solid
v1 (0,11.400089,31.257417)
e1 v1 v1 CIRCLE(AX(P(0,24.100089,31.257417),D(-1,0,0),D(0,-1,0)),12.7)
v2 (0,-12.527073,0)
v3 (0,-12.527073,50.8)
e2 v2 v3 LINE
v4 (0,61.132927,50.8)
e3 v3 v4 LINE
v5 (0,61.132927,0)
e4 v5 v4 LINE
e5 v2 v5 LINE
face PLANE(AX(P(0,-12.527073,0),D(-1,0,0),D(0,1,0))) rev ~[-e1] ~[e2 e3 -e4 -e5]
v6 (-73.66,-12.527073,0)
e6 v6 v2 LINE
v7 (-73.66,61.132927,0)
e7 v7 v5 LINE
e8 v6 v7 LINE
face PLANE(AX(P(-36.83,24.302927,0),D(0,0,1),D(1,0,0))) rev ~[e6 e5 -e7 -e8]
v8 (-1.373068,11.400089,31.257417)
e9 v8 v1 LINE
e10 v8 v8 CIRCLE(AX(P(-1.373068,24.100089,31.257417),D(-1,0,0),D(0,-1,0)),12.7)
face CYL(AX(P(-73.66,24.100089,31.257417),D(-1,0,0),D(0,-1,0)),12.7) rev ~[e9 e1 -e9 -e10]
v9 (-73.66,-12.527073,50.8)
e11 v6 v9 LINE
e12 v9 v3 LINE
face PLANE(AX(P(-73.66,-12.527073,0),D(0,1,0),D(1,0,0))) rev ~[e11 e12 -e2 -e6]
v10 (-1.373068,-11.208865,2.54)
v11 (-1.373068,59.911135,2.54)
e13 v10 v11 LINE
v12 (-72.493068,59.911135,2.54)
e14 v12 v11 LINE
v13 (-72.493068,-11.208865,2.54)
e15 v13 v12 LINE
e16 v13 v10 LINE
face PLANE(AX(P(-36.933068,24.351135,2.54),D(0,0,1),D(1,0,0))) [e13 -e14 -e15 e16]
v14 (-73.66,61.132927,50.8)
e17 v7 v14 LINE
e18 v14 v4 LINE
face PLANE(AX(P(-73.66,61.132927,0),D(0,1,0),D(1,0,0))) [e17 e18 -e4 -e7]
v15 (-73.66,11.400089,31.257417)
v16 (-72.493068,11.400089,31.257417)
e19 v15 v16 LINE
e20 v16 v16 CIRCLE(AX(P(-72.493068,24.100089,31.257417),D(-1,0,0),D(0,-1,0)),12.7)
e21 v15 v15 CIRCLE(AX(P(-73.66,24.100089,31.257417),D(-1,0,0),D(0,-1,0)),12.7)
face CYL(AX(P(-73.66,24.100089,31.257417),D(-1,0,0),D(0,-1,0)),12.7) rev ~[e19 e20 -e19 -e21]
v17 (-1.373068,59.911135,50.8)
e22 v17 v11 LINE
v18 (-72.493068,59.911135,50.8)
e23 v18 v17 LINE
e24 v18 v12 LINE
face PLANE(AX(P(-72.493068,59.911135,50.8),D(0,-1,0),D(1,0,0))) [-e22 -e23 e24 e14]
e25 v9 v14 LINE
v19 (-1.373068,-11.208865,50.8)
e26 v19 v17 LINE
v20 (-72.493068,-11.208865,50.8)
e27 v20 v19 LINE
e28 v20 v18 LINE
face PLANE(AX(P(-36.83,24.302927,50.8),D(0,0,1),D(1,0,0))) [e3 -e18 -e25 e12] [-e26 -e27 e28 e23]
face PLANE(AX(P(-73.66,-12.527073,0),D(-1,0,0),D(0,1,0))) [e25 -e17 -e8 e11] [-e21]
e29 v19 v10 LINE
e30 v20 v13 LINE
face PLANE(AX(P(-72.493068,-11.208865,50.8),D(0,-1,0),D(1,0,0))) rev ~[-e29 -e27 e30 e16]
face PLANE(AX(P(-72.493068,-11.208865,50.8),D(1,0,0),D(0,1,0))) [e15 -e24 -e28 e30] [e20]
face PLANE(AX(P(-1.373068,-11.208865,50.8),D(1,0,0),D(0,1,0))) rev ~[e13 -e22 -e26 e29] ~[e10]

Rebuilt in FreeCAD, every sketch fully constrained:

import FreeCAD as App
import Part
import Sketcher

V = App.Vector
Q = App.Units.Quantity

doc = App.newDocument("Part")
body = doc.addObject("PartDesign::Body", "Body")

# Sketch on XY plane
sketch1 = body.newObject("Sketcher::SketchObject", "Sketch")
sketch1.AttachmentSupport = (doc.getObject("XY_Plane"), [""])
sketch1.MapMode = "FlatFace"
sketch1.addGeometry([
    Part.LineSegment(V(-74, 61, 0), V(-74, -13, 0)),
    Part.LineSegment(V(-74, -13, 0), V(0, -13, 0)),
    Part.LineSegment(V(0, -13, 0), V(0, 61, 0)),
    Part.LineSegment(V(0, 61, 0), V(-74, 61, 0)),
], False)
sketch1.addConstraint([
    Sketcher.Constraint("Coincident", 0, 2, 1, 1),
    Sketcher.Constraint("Coincident", 1, 2, 2, 1),
    Sketcher.Constraint("Coincident", 2, 2, 3, 1),
    Sketcher.Constraint("Coincident", 3, 2, 0, 1),
    Sketcher.Constraint("Vertical", 0),
    Sketcher.Constraint("Horizontal", 1),
    Sketcher.Constraint("Vertical", 2),
    Sketcher.Constraint("Horizontal", 3),
    Sketcher.Constraint("PointOnObject", 1, 2, -2),
    Sketcher.Constraint("Equal", 3, 0),
    Sketcher.Constraint("DistanceX", 1, 1, 1, 2, Q("2.9 in")),
    Sketcher.Constraint("DistanceY", 0, 2, -1, 1, 12.527073),
])
pad1 = body.newObject("PartDesign::Pad", "Pad")
pad1.Profile = sketch1
pad1.Length = Q("2 in")

# Sketch on XY plane
sketch2 = body.newObject("Sketcher::SketchObject", "Sketch001")
sketch2.AttachmentSupport = (doc.getObject("XY_Plane"), [""])
sketch2.MapMode = "FlatFace"
sketch2.AttachmentOffset = App.Placement(V(0, 0, 2 * 25.4), App.Rotation())
sketch2.addGeometry([
    Part.LineSegment(V(-72, 60, 0), V(-72, -11, 0)),
    Part.LineSegment(V(-72, -11, 0), V(-1, -11, 0)),
    Part.LineSegment(V(-1, -11, 0), V(-1, 60, 0)),
    Part.LineSegment(V(-1, 60, 0), V(-72, 60, 0)),
], False)
sketch2.addConstraint([
    Sketcher.Constraint("Coincident", 0, 2, 1, 1),
    Sketcher.Constraint("Coincident", 1, 2, 2, 1),
    Sketcher.Constraint("Coincident", 2, 2, 3, 1),
    Sketcher.Constraint("Coincident", 3, 2, 0, 1),
    Sketcher.Constraint("Vertical", 0),
    Sketcher.Constraint("Horizontal", 1),
    Sketcher.Constraint("Vertical", 2),
    Sketcher.Constraint("Horizontal", 3),
    Sketcher.Constraint("Equal", 3, 0),
    Sketcher.Constraint("DistanceX", 1, 1, 1, 2, Q("2.8 in")),
    Sketcher.Constraint("DistanceX", 0, 2, -1, 1, 72.493068),
    Sketcher.Constraint("DistanceY", 0, 2, -1, 1, 11.208865),
])
pocket1 = body.newObject("PartDesign::Pocket", "Pocket")
pocket1.Profile = sketch2
pocket1.Length = Q("1.9 in")

# Sketch on YZ plane
sketch3 = body.newObject("Sketcher::SketchObject", "Sketch002")
sketch3.AttachmentSupport = (doc.getObject("YZ_Plane"), [""])
sketch3.MapMode = "FlatFace"
sketch3.AttachmentOffset = App.Placement(V(0, 0, -2.9 * 25.4), App.Rotation())
sketch3.addGeometry(Part.Circle(V(24, 31, 0), V(0, 0, 1), 13), False)
sketch3.addConstraint([
    Sketcher.Constraint("Diameter", 0, Q("1 in")),
    Sketcher.Constraint("DistanceX", -1, 1, 0, 3, 24.100089),
    Sketcher.Constraint("DistanceY", -1, 1, 0, 3, 31.257417),
])
pocket2 = body.newObject("PartDesign::Pocket", "Pocket001")
pocket2.Profile = sketch3
pocket2.Length = Q("3.44 in")
pocket2.Reversed = True

doc.recompute()
